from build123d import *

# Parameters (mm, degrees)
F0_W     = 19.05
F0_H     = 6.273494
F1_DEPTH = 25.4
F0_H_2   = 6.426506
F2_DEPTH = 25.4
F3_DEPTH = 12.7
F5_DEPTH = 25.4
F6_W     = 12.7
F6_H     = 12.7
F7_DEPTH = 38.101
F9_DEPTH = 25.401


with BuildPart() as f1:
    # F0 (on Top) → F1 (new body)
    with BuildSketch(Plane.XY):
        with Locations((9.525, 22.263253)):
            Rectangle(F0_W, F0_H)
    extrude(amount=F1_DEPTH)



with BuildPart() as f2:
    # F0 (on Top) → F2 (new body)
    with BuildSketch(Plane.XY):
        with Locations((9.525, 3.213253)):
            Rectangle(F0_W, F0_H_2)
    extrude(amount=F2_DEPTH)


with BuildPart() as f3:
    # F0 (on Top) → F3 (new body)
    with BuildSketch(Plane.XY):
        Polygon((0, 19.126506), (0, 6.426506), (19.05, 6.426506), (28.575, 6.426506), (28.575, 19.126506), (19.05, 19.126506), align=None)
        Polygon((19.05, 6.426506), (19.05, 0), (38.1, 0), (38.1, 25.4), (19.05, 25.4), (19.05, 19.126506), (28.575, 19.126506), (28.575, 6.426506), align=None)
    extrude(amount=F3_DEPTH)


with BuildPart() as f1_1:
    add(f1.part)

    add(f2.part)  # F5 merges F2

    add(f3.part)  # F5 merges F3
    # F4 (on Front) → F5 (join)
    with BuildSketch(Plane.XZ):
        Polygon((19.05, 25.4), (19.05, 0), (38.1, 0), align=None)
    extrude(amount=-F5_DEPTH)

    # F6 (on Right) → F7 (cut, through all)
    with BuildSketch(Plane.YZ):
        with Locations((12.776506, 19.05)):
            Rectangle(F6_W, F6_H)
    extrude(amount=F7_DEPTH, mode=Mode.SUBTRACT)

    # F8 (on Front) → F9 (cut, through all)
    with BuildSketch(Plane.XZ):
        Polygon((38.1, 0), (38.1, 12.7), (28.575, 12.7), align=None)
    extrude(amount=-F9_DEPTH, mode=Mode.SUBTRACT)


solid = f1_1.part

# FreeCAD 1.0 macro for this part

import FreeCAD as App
import Part
import Sketcher
Q = App.Units.Quantity


def add_polygon(sketch, points):
    """Adds a closed chain of lines whose ends are joined by coincident constraints."""
    first, n = sketch.GeometryCount, len(points)
    for a, b in zip(points, points[1:] + points[:1]):
        sketch.addGeometry(Part.LineSegment(App.Vector(*a, 0), App.Vector(*b, 0)), False)
    for i in range(n):
        sketch.addConstraint(Sketcher.Constraint("Coincident", first + i, 2, first + (i + 1) % n, 1))

doc = App.newDocument("Part")
body = doc.addObject("PartDesign::Body", "Body")

sketch1 = body.newObject("Sketcher::SketchObject", "Sketch")
sketch1.AttachmentSupport = (doc.getObject("XY_Plane"), [""])
sketch1.MapMode = "FlatFace"
add_polygon(sketch1, [(0, 25), (0, 19), (19, 19), (19, 25)])
sketch1.addConstraint([
    Sketcher.Constraint("Vertical", 0),
    Sketcher.Constraint("Horizontal", 1),
    Sketcher.Constraint("Vertical", 2),
    Sketcher.Constraint("Horizontal", 3),
    Sketcher.Constraint("PointOnObject", 0, 2, -2),
    Sketcher.Constraint("DistanceY", -1, 1, 2, 2, Q("1 in")),
    Sketcher.Constraint("DistanceX", 1, 1, 1, 2, Q("0.75 in")),
    Sketcher.Constraint("DistanceY", 0, 2, 0, 1, 6.273494),
])
pad1 = body.newObject("PartDesign::Pad", "Pad")
pad1.Profile = sketch1
pad1.Length = Q("1 in")
body2 = doc.addObject("PartDesign::Body", "Body001")

sketch2 = body2.newObject("Sketcher::SketchObject", "Sketch001")
sketch2.AttachmentSupport = (doc.getObject("XY_Plane001"), [""])
sketch2.MapMode = "FlatFace"
add_polygon(sketch2, [(0, 6), (0, 0), (19, 0), (19, 6)])
sketch2.addConstraint([
    Sketcher.Constraint("Vertical", 0),
    Sketcher.Constraint("Horizontal", 1),
    Sketcher.Constraint("Vertical", 2),
    Sketcher.Constraint("Horizontal", 3),
    Sketcher.Constraint("Coincident", 0, 2, -1, 1),
    Sketcher.Constraint("DistanceX", 1, 1, 1, 2, Q("0.75 in")),
    Sketcher.Constraint("DistanceY", 0, 2, 0, 1, 6.426506),
])
pad2 = body2.newObject("PartDesign::Pad", "Pad001")
pad2.Profile = sketch2
pad2.Length = Q("1 in")
body3 = doc.addObject("PartDesign::Body", "Body002")

sketch3 = body3.newObject("Sketcher::SketchObject", "Sketch002")
sketch3.AttachmentSupport = (doc.getObject("XY_Plane002"), [""])
sketch3.MapMode = "FlatFace"
add_polygon(sketch3, [(0, 19), (0, 6), (19, 6), (19, 0), (38, 0), (38, 25), (19, 25), (19, 19)])
sketch3.addConstraint([
    Sketcher.Constraint("Vertical", 0),
    Sketcher.Constraint("Horizontal", 1),
    Sketcher.Constraint("Vertical", 2),
    Sketcher.Constraint("Horizontal", 3),
    Sketcher.Constraint("Vertical", 4),
    Sketcher.Constraint("Horizontal", 5),
    Sketcher.Constraint("Vertical", 6),
    Sketcher.Constraint("Horizontal", 7),
    Sketcher.Constraint("PointOnObject", 0, 2, -2),
    Sketcher.Constraint("PointOnObject", 2, 2, -1),
    Sketcher.Constraint("Vertical", 2, 2, 5, 2),
    Sketcher.Constraint("Equal", 1, 3),
    Sketcher.Constraint("DistanceY", 4, 1, 4, 2, Q("1 in")),
    Sketcher.Constraint("DistanceY", 0, 2, 0, 1, Q("0.5 in")),
    Sketcher.Constraint("DistanceX", 1, 1, 1, 2, Q("0.75 in")),
    Sketcher.Constraint("DistanceY", 2, 2, 2, 1, 6.426506),
])
pad3 = body3.newObject("PartDesign::Pad", "Pad002")
pad3.Profile = sketch3
pad3.Length = Q("0.5 in")
body.AllowCompound = True
doc.recompute()

boolean = body.newObject("PartDesign::Boolean", "Boolean")
boolean.Type = "Fuse"
boolean.addObjects([body2])
doc.recompute()

boolean2 = body.newObject("PartDesign::Boolean", "Boolean001")
boolean2.Type = "Fuse"
boolean2.addObjects([body3])

sketch4 = body.newObject("Sketcher::SketchObject", "Sketch003")
sketch4.AttachmentSupport = (doc.getObject("XZ_Plane"), [""])
sketch4.MapMode = "FlatFace"
add_polygon(sketch4, [(19, 25), (19, 0), (38, 0)])
sketch4.addConstraint([
    Sketcher.Constraint("Vertical", 0),
    Sketcher.Constraint("Horizontal", 1),
    Sketcher.Constraint("PointOnObject", 0, 2, -1),
    Sketcher.Constraint("DistanceY", 0, 2, 0, 1, Q("1 in")),
    Sketcher.Constraint("DistanceX", 1, 1, 1, 2, Q("0.75 in")),
    Sketcher.Constraint("DistanceX", -1, 1, 1, 2, Q("1.5 in")),
])
pad4 = body.newObject("PartDesign::Pad", "Pad003")
pad4.Profile = sketch4
pad4.Length = Q("1 in")
pad4.Reversed = True

sketch5 = body.newObject("Sketcher::SketchObject", "Sketch004")
sketch5.AttachmentSupport = (doc.getObject("YZ_Plane"), [""])
sketch5.MapMode = "FlatFace"
add_polygon(sketch5, [(6, 25), (6, 13), (19, 13), (19, 25)])
sketch5.addConstraint([
    Sketcher.Constraint("Vertical", 0),
    Sketcher.Constraint("Horizontal", 1),
    Sketcher.Constraint("Vertical", 2),
    Sketcher.Constraint("Horizontal", 3),
    Sketcher.Constraint("Equal", 3, 0),
    Sketcher.Constraint("DistanceX", 1, 1, 1, 2, Q("0.5 in")),
    Sketcher.Constraint("DistanceY", -1, 1, 2, 2, Q("1 in")),
    Sketcher.Constraint("DistanceX", -1, 1, 0, 2, 6.426506),
])
pocket1 = body.newObject("PartDesign::Pocket", "Pocket")
pocket1.Profile = sketch5
pocket1.Type = "ThroughAll"
pocket1.Reversed = True

sketch6 = body.newObject("Sketcher::SketchObject", "Sketch005")
sketch6.AttachmentSupport = (doc.getObject("XZ_Plane"), [""])
sketch6.MapMode = "FlatFace"
add_polygon(sketch6, [(38, 0), (38, 13), (29, 13)])
sketch6.addConstraint([
    Sketcher.Constraint("Vertical", 0),
    Sketcher.Constraint("Horizontal", 1),
    Sketcher.Constraint("PointOnObject", 2, 2, -1),
    Sketcher.Constraint("DistanceY", 0, 1, 0, 2, Q("0.5 in")),
    Sketcher.Constraint("DistanceX", -1, 1, 0, 2, Q("1.5 in")),
    Sketcher.Constraint("DistanceX", 1, 2, 1, 1, Q("0.375 in")),
])
pocket2 = body.newObject("PartDesign::Pocket", "Pocket001")
pocket2.Profile = sketch6
pocket2.Type = "ThroughAll"

doc.recompute()
